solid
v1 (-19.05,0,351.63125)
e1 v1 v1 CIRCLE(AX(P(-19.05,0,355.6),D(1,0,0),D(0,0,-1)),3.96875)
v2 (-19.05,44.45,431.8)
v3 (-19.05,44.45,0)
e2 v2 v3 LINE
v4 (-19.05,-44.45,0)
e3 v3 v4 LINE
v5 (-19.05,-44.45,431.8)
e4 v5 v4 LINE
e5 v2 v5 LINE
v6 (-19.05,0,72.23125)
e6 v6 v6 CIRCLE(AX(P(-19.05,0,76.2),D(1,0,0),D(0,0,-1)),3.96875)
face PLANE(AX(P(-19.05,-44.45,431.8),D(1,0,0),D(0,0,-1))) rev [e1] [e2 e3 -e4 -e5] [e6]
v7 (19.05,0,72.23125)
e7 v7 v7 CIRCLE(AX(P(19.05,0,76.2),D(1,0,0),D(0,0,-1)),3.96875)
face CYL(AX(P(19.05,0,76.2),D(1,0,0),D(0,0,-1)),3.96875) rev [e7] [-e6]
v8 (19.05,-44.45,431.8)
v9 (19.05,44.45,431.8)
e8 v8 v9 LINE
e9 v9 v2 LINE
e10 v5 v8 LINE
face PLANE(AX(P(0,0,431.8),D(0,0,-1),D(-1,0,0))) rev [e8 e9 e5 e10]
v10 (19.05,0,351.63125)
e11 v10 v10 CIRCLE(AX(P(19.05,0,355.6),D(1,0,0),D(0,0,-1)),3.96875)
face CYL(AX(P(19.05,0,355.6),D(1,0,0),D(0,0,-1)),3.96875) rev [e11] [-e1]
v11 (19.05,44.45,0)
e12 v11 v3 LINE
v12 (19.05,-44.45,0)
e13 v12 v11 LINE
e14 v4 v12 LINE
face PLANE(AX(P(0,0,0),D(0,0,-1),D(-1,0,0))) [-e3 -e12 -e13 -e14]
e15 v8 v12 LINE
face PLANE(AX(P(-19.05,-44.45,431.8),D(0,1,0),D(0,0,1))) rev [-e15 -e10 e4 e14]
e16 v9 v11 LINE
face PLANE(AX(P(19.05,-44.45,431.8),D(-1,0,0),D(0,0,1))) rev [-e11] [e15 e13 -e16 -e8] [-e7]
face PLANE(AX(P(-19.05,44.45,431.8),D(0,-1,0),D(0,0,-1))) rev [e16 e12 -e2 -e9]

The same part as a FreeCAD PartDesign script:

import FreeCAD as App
import Part
import Sketcher

V = App.Vector
Q = App.Units.Quantity

doc = App.newDocument("Part")
body = doc.addObject("PartDesign::Body", "Body")

# Sketch on XY plane
sketch1 = body.newObject("Sketcher::SketchObject", "Sketch")
sketch1.AttachmentSupport = (doc.getObject("XY_Plane"), [""])
sketch1.MapMode = "FlatFace"
sketch1.addGeometry(Part.LineSegment(V(-19.05, 44.45, 0), V(-19.05, -44.45, 0)), False)
sketch1.addGeometry(Part.LineSegment(V(-19.05, -44.45, 0), V(19.05, -44.45, 0)), False)
sketch1.addGeometry(Part.LineSegment(V(19.05, -44.45, 0), V(19.05, 44.45, 0)), False)
sketch1.addGeometry(Part.LineSegment(V(19.05, 44.45, 0), V(-19.05, 44.45, 0)), False)
sketch1.addConstraint(Sketcher.Constraint("Coincident", 0, 2, 1, 1))
sketch1.addConstraint(Sketcher.Constraint("Coincident", 1, 2, 2, 1))
sketch1.addConstraint(Sketcher.Constraint("Coincident", 2, 2, 3, 1))
sketch1.addConstraint(Sketcher.Constraint("Coincident", 3, 2, 0, 1))
sketch1.addConstraint(Sketcher.Constraint("Vertical", 0))
sketch1.addConstraint(Sketcher.Constraint("Horizontal", 1))
sketch1.addConstraint(Sketcher.Constraint("Vertical", 2))
sketch1.addConstraint(Sketcher.Constraint("Horizontal", 3))
sketch1.addConstraint(Sketcher.Constraint("Symmetric", 0, 2, 2, 2, -1, 1))
sketch1.addConstraint(Sketcher.Constraint("DistanceX", 1, 1, 1, 2, Q("1.5 in")))
sketch1.addConstraint(Sketcher.Constraint("DistanceY", 0, 2, 0, 1, Q("3.5 in")))
pad1 = body.newObject("PartDesign::Pad", "Pad")
pad1.Profile = sketch1
pad1.Length = Q("17 in")

# Sketch on YZ plane
sketch2 = body.newObject("Sketcher::SketchObject", "Sketch001")
sketch2.AttachmentSupport = (doc.getObject("YZ_Plane"), [""])
sketch2.MapMode = "FlatFace"
sketch2.AttachmentOffset = App.Placement(V(0, 0, 0.75 * 25.4), App.Rotation())
sketch2.addGeometry(Part.Circle(V(0, 355.6, 0), V(0, 0, 1), 3.96875), False)
sketch2.addGeometry(Part.Circle(V(0, 76.2, 0), V(0, 0, 1), 3.96875), False)
sketch2.addConstraint(Sketcher.Constraint("Equal", 0, 1))
sketch2.addConstraint(Sketcher.Constraint("PointOnObject", 0, 3, -2))
sketch2.addConstraint(Sketcher.Constraint("PointOnObject", 1, 3, -2))
sketch2.addConstraint(Sketcher.Constraint("Diameter", 0, Q("0.3125 in")))
sketch2.addConstraint(Sketcher.Constraint("DistanceY", -1, 1, 0, 3, Q("14 in")))
sketch2.addConstraint(Sketcher.Constraint("DistanceY", -1, 1, 1, 3, Q("3 in")))
doc.recompute()
hole = body.newObject("PartDesign::Hole", "Hole")
hole.Profile = sketch2
hole.ThreadType = "None"
hole.Diameter = Q("0.3125 in")
hole.DepthType = "ThroughAll"

doc.recompute()
